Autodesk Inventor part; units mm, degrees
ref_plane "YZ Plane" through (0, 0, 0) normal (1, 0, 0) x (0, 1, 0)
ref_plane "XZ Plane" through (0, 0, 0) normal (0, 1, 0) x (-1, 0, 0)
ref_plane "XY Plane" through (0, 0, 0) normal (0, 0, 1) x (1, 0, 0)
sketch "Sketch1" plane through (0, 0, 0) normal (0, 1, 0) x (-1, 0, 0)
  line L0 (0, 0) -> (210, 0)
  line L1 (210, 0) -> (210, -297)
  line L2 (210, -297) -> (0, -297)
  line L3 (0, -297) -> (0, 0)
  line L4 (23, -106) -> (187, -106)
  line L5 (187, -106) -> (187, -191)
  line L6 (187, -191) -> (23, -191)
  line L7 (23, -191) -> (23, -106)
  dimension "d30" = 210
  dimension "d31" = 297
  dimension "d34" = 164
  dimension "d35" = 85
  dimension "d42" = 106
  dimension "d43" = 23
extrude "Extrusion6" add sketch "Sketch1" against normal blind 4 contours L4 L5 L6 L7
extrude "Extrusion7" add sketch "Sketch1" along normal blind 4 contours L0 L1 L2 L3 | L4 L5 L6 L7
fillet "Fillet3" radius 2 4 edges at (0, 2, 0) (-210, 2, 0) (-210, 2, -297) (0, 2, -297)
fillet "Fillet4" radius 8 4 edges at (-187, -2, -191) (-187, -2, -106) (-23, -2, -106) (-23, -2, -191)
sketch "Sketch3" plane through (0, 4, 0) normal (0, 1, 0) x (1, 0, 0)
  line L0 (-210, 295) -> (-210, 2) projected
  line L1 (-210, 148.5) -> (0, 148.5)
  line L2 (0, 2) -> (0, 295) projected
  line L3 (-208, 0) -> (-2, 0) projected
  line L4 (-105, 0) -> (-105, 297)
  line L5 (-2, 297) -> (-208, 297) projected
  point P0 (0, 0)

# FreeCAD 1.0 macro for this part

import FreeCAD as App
import Part
import Sketcher
from FreeCAD import Vector


def edges_at(feature, points):
    """Names of the edges that pass closest to the given points."""
    edges = feature.Shape.Edges
    near = lambda p: min(range(len(edges)), key=lambda i: edges[i].distToShape(Part.Vertex(*p))[0])
    return sorted({f"Edge{near(p) + 1}" for p in points})

doc = App.newDocument("Part")
body = doc.addObject("PartDesign::Body", "Body")

# Sketch on XZ plane
sketch1 = body.newObject("Sketcher::SketchObject", "Sketch")
sketch1.AttachmentSupport = (doc.getObject("XZ_Plane"), [""])
sketch1.MapMode = "FlatFace"
sketch1.addGeometry([
    Part.LineSegment(Vector(-187, -106, 0), Vector(-23, -106, 0)),
    Part.LineSegment(Vector(-23, -106, 0), Vector(-23, -191, 0)),
    Part.LineSegment(Vector(-23, -191, 0), Vector(-187, -191, 0)),
    Part.LineSegment(Vector(-187, -191, 0), Vector(-187, -106, 0)),
], False)
sketch1.addConstraint([
    Sketcher.Constraint("Coincident", 0, 2, 1, 1),
    Sketcher.Constraint("Coincident", 1, 2, 2, 1),
    Sketcher.Constraint("Coincident", 2, 2, 3, 1),
    Sketcher.Constraint("Coincident", 3, 2, 0, 1),
    Sketcher.Constraint("Horizontal", 0),
    Sketcher.Constraint("Vertical", 1),
    Sketcher.Constraint("Horizontal", 2),
    Sketcher.Constraint("Vertical", 3),
    Sketcher.Constraint("DistanceX", 0, 1, 0, 2, 164.0),
    Sketcher.Constraint("DistanceY", 1, 2, 1, 1, 85.0),
    Sketcher.Constraint("DistanceX", 0, 2, -1, 1, 23.0),
    Sketcher.Constraint("DistanceY", 0, 2, -1, 1, 106.0),
])
pad1 = body.newObject("PartDesign::Pad", "Pad")
pad1.Profile = sketch1
pad1.Length = 4

# Sketch on XZ plane
sketch2 = body.newObject("Sketcher::SketchObject", "Sketch001")
sketch2.AttachmentSupport = (doc.getObject("XZ_Plane"), [""])
sketch2.MapMode = "FlatFace"
sketch2.addGeometry([
    Part.LineSegment(Vector(-210, 0, 0), Vector(0, 0, 0)),
    Part.LineSegment(Vector(0, 0, 0), Vector(0, -297, 0)),
    Part.LineSegment(Vector(0, -297, 0), Vector(-210, -297, 0)),
    Part.LineSegment(Vector(-210, -297, 0), Vector(-210, 0, 0)),
], False)
sketch2.addConstraint([
    Sketcher.Constraint("Coincident", 0, 2, 1, 1),
    Sketcher.Constraint("Coincident", 1, 2, 2, 1),
    Sketcher.Constraint("Coincident", 2, 2, 3, 1),
    Sketcher.Constraint("Coincident", 3, 2, 0, 1),
    Sketcher.Constraint("Horizontal", 0),
    Sketcher.Constraint("Vertical", 1),
    Sketcher.Constraint("Horizontal", 2),
    Sketcher.Constraint("Vertical", 3),
    Sketcher.Constraint("Coincident", 0, 2, -1, 1),
    Sketcher.Constraint("DistanceX", 0, 1, 0, 2, 210.0),
    Sketcher.Constraint("DistanceY", 1, 2, 1, 1, 297.0),
])
pad2 = body.newObject("PartDesign::Pad", "Pad001")
pad2.Profile = sketch2
pad2.Length = 4
pad2.Reversed = True
doc.recompute()

fillet = body.newObject("PartDesign::Fillet", "Fillet")
fillet.Base = (pad2, edges_at(pad2, [
    (0, 2, 0),
    (-210, 2, 0),
    (-210, 2, -297),
    (0, 2, -297),
]))
fillet.Radius = 2
doc.recompute()

fillet2 = body.newObject("PartDesign::Fillet", "Fillet001")
fillet2.Base = (fillet, edges_at(fillet, [
    (-187, -2, -191),
    (-187, -2, -106),
    (-23, -2, -106),
    (-23, -2, -191),
]))
fillet2.Radius = 8

doc.recompute()
